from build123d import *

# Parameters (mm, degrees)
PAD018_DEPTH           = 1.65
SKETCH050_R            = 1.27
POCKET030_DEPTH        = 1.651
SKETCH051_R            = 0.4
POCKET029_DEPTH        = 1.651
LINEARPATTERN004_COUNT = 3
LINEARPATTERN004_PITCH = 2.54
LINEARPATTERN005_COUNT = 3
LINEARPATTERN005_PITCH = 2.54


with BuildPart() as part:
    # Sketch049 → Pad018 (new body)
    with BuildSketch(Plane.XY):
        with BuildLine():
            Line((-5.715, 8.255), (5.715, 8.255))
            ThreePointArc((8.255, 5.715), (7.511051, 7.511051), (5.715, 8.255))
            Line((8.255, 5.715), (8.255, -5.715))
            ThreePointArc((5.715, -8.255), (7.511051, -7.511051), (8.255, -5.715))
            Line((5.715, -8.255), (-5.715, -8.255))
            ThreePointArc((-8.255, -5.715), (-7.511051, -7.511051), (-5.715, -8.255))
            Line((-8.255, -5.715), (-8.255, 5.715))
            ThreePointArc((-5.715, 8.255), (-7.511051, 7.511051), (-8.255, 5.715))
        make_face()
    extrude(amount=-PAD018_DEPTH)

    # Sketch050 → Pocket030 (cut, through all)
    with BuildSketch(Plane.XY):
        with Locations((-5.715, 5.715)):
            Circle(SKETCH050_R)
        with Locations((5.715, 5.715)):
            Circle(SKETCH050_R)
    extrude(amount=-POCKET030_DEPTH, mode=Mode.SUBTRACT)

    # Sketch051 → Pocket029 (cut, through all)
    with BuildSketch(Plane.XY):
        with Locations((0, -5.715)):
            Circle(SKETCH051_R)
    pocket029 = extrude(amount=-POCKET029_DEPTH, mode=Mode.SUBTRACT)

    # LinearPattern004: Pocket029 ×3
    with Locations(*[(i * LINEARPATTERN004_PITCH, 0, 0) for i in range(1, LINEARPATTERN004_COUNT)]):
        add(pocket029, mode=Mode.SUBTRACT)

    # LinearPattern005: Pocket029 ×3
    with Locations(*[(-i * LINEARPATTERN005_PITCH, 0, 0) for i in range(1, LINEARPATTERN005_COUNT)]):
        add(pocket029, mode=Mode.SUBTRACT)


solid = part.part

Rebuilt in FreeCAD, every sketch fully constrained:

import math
import FreeCAD as App
import Part
import Sketcher

V = App.Vector
Q = App.Units.Quantity

doc = App.newDocument("Part")
params = doc.addObject("Spreadsheet::Sheet", "Params")
for row, (alias, value) in enumerate([
    ("sketch1_radius", "0.1 in"),
    ("sketch1_width", "0.45 in"),
    ("pad1_length", "1.65 mm"),
    ("sketch2_diameter", "0.1 in"),
    ("linearpattern_pitch", "0.1 in"),
    ("linearpattern2_pitch", "0.1 in"),
], start=1):
    params.set(f"A{row}", alias)
    params.set(f"B{row}", "=" + value)
    params.setAlias(f"B{row}", alias)

body = doc.addObject("PartDesign::Body", "Body")

# Sketch on XY plane
sketch1 = body.newObject("Sketcher::SketchObject", "Sketch")
sketch1.AttachmentSupport = (doc.getObject("XY_Plane"), [""])
sketch1.MapMode = "FlatFace"
sketch1.addGeometry([
    Part.LineSegment(V(5.7, 8.3, 0), V(-5.7, 8.3, 0)),  # 0
    Part.ArcOfCircle(Part.Circle(V(-5.7, 5.7, 0), V(0, 0, 1), 2.5), math.radians(90), math.radians(180)),  # 1
    Part.LineSegment(V(-8.3, 5.7, 0), V(-8.3, -5.7, 0)),  # 2
    Part.ArcOfCircle(Part.Circle(V(-5.7, -5.7, 0), V(0, 0, 1), 2.5), math.radians(-180), math.radians(-90)),  # 3
    Part.LineSegment(V(-5.7, -8.3, 0), V(5.7, -8.3, 0)),  # 4
    Part.ArcOfCircle(Part.Circle(V(5.7, -5.7, 0), V(0, 0, 1), 2.5), math.radians(-90), math.radians(0)),  # 5
    Part.LineSegment(V(8.3, -5.7, 0), V(8.3, 5.7, 0)),  # 6
    Part.ArcOfCircle(Part.Circle(V(5.7, 5.7, 0), V(0, 0, 1), 2.5), math.radians(0), math.radians(90)),  # 7
], False)
sketch1.addConstraint([
    Sketcher.Constraint("Tangent", 0, 2, 1, 1),
    Sketcher.Constraint("Tangent", 1, 2, 2, 1),
    Sketcher.Constraint("Tangent", 2, 2, 3, 1),
    Sketcher.Constraint("Tangent", 3, 2, 4, 1),
    Sketcher.Constraint("Tangent", 4, 2, 5, 1),
    Sketcher.Constraint("Tangent", 5, 2, 6, 1),
    Sketcher.Constraint("Tangent", 6, 2, 7, 1),
    Sketcher.Constraint("Tangent", 7, 2, 0, 1),
    Sketcher.Constraint("Horizontal", 0),
    Sketcher.Constraint("Vertical", 2),
    Sketcher.Constraint("Horizontal", 4),
    Sketcher.Constraint("Vertical", 6),
    Sketcher.Constraint("Equal", 1, 3),
    Sketcher.Constraint("Equal", 3, 5),
    Sketcher.Constraint("Equal", 5, 7),
    Sketcher.Constraint("Symmetric", 1, 3, 5, 3, -1, 1),
    Sketcher.Constraint("Equal", 4, 2),
    Sketcher.Constraint("Radius", 1, Q("0.1 in")),
    Sketcher.Constraint("DistanceX", 0, 2, 0, 1, Q("0.45 in")),
])
sketch1.setExpression("Constraints[17]", "Params.sketch1_radius")
sketch1.setExpression("Constraints[18]", "Params.sketch1_width")
pad1 = body.newObject("PartDesign::Pad", "Pad")
pad1.Profile = sketch1
pad1.setExpression("Length", "Params.pad1_length")
pad1.Reversed = True

# Sketch on XY plane
sketch2 = body.newObject("Sketcher::SketchObject", "Sketch001")
sketch2.AttachmentSupport = (doc.getObject("XY_Plane"), [""])
sketch2.MapMode = "FlatFace"
sketch2.addGeometry([
    Part.Circle(V(-5.7, 5.7, 0), V(0, 0, 1), 1.3),
    Part.Circle(V(5.7, 5.7, 0), V(0, 0, 1), 1.3),
], False)
sketch2.addConstraint([
    Sketcher.Constraint("Equal", 0, 1),
    Sketcher.Constraint("Symmetric", 0, 3, 1, 3, -2),
    Sketcher.Constraint("Diameter", 0, Q("0.1 in")),
    Sketcher.Constraint("DistanceX", 0, 3, 1, 3, Q("0.45 in")),
    Sketcher.Constraint("DistanceY", -1, 1, 0, 3, Q("0.225 in")),
])
sketch2.setExpression("Constraints[2]", "Params.sketch2_diameter")
pocket1 = body.newObject("PartDesign::Pocket", "Pocket")
pocket1.Profile = sketch2
pocket1.Type = "ThroughAll"

# Sketch on XY plane
sketch3 = body.newObject("Sketcher::SketchObject", "Sketch002")
sketch3.AttachmentSupport = (doc.getObject("XY_Plane"), [""])
sketch3.MapMode = "FlatFace"
sketch3.addGeometry(Part.Circle(V(0, -5.71, 0), V(0, 0, 1), 0.4), False)
sketch3.addConstraint([
    Sketcher.Constraint("PointOnObject", 0, 3, -2),
    Sketcher.Constraint("Diameter", 0, 0.8),
    Sketcher.Constraint("DistanceY", 0, 3, -1, 1, Q("0.225 in")),
])
pocket2 = body.newObject("PartDesign::Pocket", "Pocket001")
pocket2.Profile = sketch3
pocket2.Type = "ThroughAll"
doc.recompute()

linearpattern = body.newObject("PartDesign::LinearPattern", "LinearPattern")
linearpattern.Originals = [pocket2]
linearpattern.Direction = (doc.getObject("X_Axis"), [""])
linearpattern.Mode = "offset"
linearpattern.setExpression("Offset", "Params.linearpattern_pitch")
linearpattern.Occurrences = 3
body.Tip = linearpattern
doc.recompute()

linearpattern2 = body.newObject("PartDesign::LinearPattern", "LinearPattern001")
linearpattern2.Originals = [pocket2]
linearpattern2.Direction = (doc.getObject("X_Axis"), [""])
linearpattern2.Mode = "offset"
linearpattern2.setExpression("Offset", "Params.linearpattern2_pitch")
linearpattern2.Occurrences = 3
linearpattern2.Reversed = True
body.Tip = linearpattern2

doc.recompute()
